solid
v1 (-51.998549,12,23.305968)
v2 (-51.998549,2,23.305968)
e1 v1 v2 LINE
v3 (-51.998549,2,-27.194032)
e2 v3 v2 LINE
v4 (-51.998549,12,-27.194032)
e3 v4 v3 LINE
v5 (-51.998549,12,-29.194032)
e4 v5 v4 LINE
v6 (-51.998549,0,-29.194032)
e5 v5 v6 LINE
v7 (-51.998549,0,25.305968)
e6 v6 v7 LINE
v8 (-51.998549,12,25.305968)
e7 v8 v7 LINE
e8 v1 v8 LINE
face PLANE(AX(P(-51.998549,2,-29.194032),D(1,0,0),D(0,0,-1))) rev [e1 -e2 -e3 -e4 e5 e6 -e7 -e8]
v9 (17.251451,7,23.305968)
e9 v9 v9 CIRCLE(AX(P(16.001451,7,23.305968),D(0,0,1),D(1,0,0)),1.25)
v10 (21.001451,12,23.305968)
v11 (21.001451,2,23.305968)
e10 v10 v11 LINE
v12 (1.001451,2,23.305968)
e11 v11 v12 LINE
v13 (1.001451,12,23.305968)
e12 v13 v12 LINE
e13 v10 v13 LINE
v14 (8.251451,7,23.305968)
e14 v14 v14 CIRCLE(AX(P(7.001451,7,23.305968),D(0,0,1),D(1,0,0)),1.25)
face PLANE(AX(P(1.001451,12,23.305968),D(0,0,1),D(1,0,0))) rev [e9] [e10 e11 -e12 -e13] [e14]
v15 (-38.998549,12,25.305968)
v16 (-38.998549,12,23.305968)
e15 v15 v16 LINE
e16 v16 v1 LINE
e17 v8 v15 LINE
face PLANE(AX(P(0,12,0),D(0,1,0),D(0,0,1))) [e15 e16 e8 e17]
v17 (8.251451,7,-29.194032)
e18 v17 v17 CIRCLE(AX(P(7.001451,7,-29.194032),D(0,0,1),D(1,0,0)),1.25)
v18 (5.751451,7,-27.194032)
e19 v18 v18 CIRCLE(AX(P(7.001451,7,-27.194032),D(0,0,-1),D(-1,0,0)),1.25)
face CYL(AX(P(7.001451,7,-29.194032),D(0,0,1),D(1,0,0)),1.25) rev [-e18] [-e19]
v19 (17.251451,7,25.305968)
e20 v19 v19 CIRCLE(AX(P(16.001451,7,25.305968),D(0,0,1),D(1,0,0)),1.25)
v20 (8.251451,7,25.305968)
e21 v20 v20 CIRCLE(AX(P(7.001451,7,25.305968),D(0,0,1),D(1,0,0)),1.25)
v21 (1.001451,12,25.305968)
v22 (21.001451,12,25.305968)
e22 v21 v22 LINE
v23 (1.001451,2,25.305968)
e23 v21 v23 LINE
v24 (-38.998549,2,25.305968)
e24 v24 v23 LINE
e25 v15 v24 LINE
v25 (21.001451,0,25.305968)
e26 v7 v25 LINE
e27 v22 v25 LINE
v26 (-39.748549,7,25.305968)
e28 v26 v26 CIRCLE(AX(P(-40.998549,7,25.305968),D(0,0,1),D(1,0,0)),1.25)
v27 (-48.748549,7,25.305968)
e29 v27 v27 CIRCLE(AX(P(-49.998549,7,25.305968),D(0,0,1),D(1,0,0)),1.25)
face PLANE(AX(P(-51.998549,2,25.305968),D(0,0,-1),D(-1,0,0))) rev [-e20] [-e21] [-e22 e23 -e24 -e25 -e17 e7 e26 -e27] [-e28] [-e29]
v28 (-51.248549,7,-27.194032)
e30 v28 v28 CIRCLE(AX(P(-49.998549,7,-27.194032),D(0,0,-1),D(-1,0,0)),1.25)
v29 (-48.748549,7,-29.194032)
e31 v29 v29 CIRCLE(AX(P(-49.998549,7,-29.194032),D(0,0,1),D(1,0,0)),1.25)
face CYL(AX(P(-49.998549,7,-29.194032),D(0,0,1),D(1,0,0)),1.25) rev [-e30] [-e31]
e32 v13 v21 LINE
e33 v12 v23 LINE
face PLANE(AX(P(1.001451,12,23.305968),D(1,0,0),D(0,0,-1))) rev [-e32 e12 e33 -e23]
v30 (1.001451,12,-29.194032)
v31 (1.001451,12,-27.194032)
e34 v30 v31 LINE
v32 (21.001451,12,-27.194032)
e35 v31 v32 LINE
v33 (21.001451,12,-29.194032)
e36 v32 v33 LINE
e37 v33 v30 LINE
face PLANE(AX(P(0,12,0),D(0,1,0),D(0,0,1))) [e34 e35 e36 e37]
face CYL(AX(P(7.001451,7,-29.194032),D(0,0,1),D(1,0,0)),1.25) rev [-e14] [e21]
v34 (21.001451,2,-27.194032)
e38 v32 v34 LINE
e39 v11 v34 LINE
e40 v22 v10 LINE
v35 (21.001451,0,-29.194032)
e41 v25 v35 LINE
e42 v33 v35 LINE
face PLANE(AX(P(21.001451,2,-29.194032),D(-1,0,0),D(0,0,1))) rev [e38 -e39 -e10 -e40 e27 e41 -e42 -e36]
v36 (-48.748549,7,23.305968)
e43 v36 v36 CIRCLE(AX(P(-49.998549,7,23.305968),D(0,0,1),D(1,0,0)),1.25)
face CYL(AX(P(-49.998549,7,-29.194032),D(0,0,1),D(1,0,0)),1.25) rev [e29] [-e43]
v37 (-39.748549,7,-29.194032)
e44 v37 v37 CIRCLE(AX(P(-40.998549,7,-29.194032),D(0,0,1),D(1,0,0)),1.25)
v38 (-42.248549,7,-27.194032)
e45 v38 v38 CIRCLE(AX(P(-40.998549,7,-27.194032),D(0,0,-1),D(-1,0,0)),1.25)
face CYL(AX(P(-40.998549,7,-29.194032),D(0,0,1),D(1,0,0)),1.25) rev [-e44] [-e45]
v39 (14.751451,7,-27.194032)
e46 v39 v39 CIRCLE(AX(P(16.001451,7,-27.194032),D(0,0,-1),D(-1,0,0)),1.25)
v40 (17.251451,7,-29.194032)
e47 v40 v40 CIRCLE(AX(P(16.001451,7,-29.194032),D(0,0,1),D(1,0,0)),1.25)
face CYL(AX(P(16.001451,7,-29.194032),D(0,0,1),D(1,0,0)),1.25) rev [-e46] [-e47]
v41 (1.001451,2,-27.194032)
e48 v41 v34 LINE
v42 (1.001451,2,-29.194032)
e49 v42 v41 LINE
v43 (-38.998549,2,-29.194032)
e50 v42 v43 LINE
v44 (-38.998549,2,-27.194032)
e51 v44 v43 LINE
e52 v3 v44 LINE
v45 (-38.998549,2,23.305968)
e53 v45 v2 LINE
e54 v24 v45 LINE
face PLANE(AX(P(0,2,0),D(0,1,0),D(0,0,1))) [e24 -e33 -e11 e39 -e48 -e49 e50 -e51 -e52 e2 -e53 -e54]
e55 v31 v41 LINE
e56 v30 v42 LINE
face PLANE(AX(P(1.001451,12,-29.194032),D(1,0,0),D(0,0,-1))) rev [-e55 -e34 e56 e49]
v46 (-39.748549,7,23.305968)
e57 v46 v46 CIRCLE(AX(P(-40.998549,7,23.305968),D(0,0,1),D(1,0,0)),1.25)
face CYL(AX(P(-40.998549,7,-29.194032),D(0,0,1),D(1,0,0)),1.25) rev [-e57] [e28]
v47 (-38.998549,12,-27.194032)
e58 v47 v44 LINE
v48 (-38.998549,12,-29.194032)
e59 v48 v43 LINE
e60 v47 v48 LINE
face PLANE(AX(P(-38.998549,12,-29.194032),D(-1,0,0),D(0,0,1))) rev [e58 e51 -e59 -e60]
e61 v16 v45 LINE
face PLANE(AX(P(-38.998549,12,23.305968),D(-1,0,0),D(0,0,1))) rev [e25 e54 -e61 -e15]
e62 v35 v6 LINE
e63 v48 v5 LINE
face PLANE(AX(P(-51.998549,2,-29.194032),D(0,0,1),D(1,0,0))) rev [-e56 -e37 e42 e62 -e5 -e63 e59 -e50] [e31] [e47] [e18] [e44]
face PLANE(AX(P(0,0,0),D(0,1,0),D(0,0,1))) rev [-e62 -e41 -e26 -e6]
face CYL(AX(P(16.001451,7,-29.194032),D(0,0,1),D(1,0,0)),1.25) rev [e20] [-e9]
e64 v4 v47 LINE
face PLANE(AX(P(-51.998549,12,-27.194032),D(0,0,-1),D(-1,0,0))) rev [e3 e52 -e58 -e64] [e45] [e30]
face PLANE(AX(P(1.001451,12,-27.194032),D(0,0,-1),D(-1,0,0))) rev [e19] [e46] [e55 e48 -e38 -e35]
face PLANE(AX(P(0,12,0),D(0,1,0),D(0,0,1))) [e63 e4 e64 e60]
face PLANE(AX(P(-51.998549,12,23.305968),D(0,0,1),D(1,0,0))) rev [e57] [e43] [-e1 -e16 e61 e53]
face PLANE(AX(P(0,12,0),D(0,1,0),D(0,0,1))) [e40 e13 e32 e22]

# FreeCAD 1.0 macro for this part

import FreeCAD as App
import Part
import Sketcher

V = App.Vector

doc = App.newDocument("Part")
params = doc.addObject("Spreadsheet::Sheet", "Params")
for row, (alias, value) in enumerate([
    ("sketch1_width", "73 mm"),
    ("sketch1_height", "54.5 mm"),
    ("pad1_length", "2 mm"),
    ("sketch2_width", "20 mm"),
    ("sketch2_width2", "13 mm"),
    ("sketch2_height", "2 mm"),
    ("pad2_length", "10 mm"),
    ("sketch3_diameter", "2.5 mm"),
], start=1):
    params.set(f"A{row}", alias)
    params.set(f"B{row}", "=" + value)
    params.setAlias(f"B{row}", alias)

body = doc.addObject("PartDesign::Body", "Body")

# Sketch on XZ plane
sketch1 = doc.addObject("Sketcher::SketchObject", "Sketch")
body.addObject(sketch1)
sketch1.AttachmentSupport = (doc.XZ_Plane, [""])
sketch1.MapMode = "FlatFace"
sketch1.addGeometry([
    Part.LineSegment(V(-52, -29, 0), V(-52, 25, 0)),
    Part.LineSegment(V(-52, 25, 0), V(21, 25, 0)),
    Part.LineSegment(V(21, 25, 0), V(21, -29, 0)),
    Part.LineSegment(V(21, -29, 0), V(-52, -29, 0)),
], False)
sketch1.addConstraint([
    Sketcher.Constraint("Coincident", 0, 2, 1, 1),
    Sketcher.Constraint("Coincident", 1, 2, 2, 1),
    Sketcher.Constraint("Coincident", 2, 2, 3, 1),
    Sketcher.Constraint("Coincident", 3, 2, 0, 1),
    Sketcher.Constraint("Vertical", 0),
    Sketcher.Constraint("Horizontal", 1),
    Sketcher.Constraint("Vertical", 2),
    Sketcher.Constraint("Horizontal", 3),
    Sketcher.Constraint("DistanceX", 1, 1, 1, 2, 73.0),
    Sketcher.Constraint("DistanceY", 0, 1, 0, 2, 54.5),
    Sketcher.Constraint("DistanceX", 0, 2, -1, 1, 51.998549),
    Sketcher.Constraint("DistanceY", -1, 1, 0, 2, 25.305968),
])
sketch1.setExpression("Constraints[8]", "Params.sketch1_width")
sketch1.setExpression("Constraints[9]", "Params.sketch1_height")
pad1 = doc.addObject("PartDesign::Pad", "Pad")
body.addObject(pad1)
pad1.Profile = sketch1
pad1.setExpression("Length", "Params.pad1_length")
pad1.Reversed = True

# Sketch on XZ plane
sketch2 = doc.addObject("Sketcher::SketchObject", "Sketch001")
body.addObject(sketch2)
sketch2.AttachmentSupport = (doc.XZ_Plane, [""])
sketch2.MapMode = "FlatFace"
sketch2.AttachmentOffset = App.Placement(V(0, 0, -2), App.Rotation())
sketch2.addGeometry([
    Part.LineSegment(V(1, -29.2, 0), V(1, -27.2, 0)),  # 0
    Part.LineSegment(V(1, -27.2, 0), V(21, -27.2, 0)),  # 1
    Part.LineSegment(V(21, -27.2, 0), V(21, -29.2, 0)),  # 2
    Part.LineSegment(V(21, -29.2, 0), V(1, -29.2, 0)),  # 3
    Part.LineSegment(V(1, 23.3, 0), V(1, 25.3, 0)),  # 4
    Part.LineSegment(V(1, 25.3, 0), V(21, 25.3, 0)),  # 5
    Part.LineSegment(V(21, 25.3, 0), V(21, 23.3, 0)),  # 6
    Part.LineSegment(V(21, 23.3, 0), V(1, 23.3, 0)),  # 7
    Part.LineSegment(V(-52, -29.2, 0), V(-52, -27.2, 0)),  # 8
    Part.LineSegment(V(-52, -27.2, 0), V(-39, -27.2, 0)),  # 9
    Part.LineSegment(V(-39, -27.2, 0), V(-39, -29.2, 0)),  # 10
    Part.LineSegment(V(-39, -29.2, 0), V(-52, -29.2, 0)),  # 11
    Part.LineSegment(V(-52, 23.3, 0), V(-52, 25.3, 0)),  # 12
    Part.LineSegment(V(-52, 25.3, 0), V(-39, 25.3, 0)),  # 13
    Part.LineSegment(V(-39, 25.3, 0), V(-39, 23.3, 0)),  # 14
    Part.LineSegment(V(-39, 23.3, 0), V(-52, 23.3, 0)),  # 15
], False)
sketch2.addConstraint([
    Sketcher.Constraint("Coincident", 0, 2, 1, 1),
    Sketcher.Constraint("Coincident", 1, 2, 2, 1),
    Sketcher.Constraint("Coincident", 2, 2, 3, 1),
    Sketcher.Constraint("Coincident", 3, 2, 0, 1),
    Sketcher.Constraint("Coincident", 4, 2, 5, 1),
    Sketcher.Constraint("Coincident", 5, 2, 6, 1),
    Sketcher.Constraint("Coincident", 6, 2, 7, 1),
    Sketcher.Constraint("Coincident", 7, 2, 4, 1),
    Sketcher.Constraint("Coincident", 8, 2, 9, 1),
    Sketcher.Constraint("Coincident", 9, 2, 10, 1),
    Sketcher.Constraint("Coincident", 10, 2, 11, 1),
    Sketcher.Constraint("Coincident", 11, 2, 8, 1),
    Sketcher.Constraint("Coincident", 12, 2, 13, 1),
    Sketcher.Constraint("Coincident", 13, 2, 14, 1),
    Sketcher.Constraint("Coincident", 14, 2, 15, 1),
    Sketcher.Constraint("Coincident", 15, 2, 12, 1),
    Sketcher.Constraint("Vertical", 0),
    Sketcher.Constraint("Horizontal", 1),
    Sketcher.Constraint("Vertical", 2),
    Sketcher.Constraint("Horizontal", 3),
    Sketcher.Constraint("Vertical", 4),
    Sketcher.Constraint("Horizontal", 5),
    Sketcher.Constraint("Vertical", 6),
    Sketcher.Constraint("Horizontal", 7),
    Sketcher.Constraint("Vertical", 8),
    Sketcher.Constraint("Horizontal", 9),
    Sketcher.Constraint("Vertical", 10),
    Sketcher.Constraint("Horizontal", 11),
    Sketcher.Constraint("Vertical", 12),
    Sketcher.Constraint("Horizontal", 13),
    Sketcher.Constraint("Vertical", 14),
    Sketcher.Constraint("Horizontal", 15),
    Sketcher.Constraint("Horizontal", 1, 2, 8, 2),
    Sketcher.Constraint("Horizontal", 3, 2, 10, 2),
    Sketcher.Constraint("Horizontal", 5, 2, 12, 2),
    Sketcher.Constraint("Horizontal", 7, 2, 14, 2),
    Sketcher.Constraint("Vertical", 3, 2, 4, 2),
    Sketcher.Constraint("Vertical", 2, 2, 5, 2),
    Sketcher.Constraint("Vertical", 11, 2, 12, 2),
    Sketcher.Constraint("Vertical", 10, 2, 13, 2),
    Sketcher.Constraint("Equal", 2, 4),
    Sketcher.Constraint("DistanceX", 1, 1, 1, 2, 20.0),
    Sketcher.Constraint("DistanceX", 9, 1, 9, 2, 13.0),
    Sketcher.Constraint("DistanceY", 0, 1, 0, 2, 2.0),
    Sketcher.Constraint("DistanceX", 8, 2, 0, 2, 53.0),
    Sketcher.Constraint("DistanceY", 0, 2, 4, 2, 52.5),
    Sketcher.Constraint("DistanceX", -1, 1, 0, 2, 1.001451),
    Sketcher.Constraint("DistanceY", 0, 2, -1, 1, 27.194032),
])
sketch2.setExpression("Constraints[41]", "Params.sketch2_width")
sketch2.setExpression("Constraints[42]", "Params.sketch2_width2")
sketch2.setExpression("Constraints[43]", "Params.sketch2_height")
pad2 = doc.addObject("PartDesign::Pad", "Pad001")
body.addObject(pad2)
pad2.Profile = sketch2
pad2.setExpression("Length", "Params.pad2_length")
pad2.Reversed = True

# Sketch on XY plane
sketch3 = doc.addObject("Sketcher::SketchObject", "Sketch002")
body.addObject(sketch3)
sketch3.AttachmentSupport = (doc.XY_Plane, [""])
sketch3.MapMode = "FlatFace"
sketch3.AttachmentOffset = App.Placement(V(0, 0, 25.305968), App.Rotation())
sketch3.addGeometry([
    Part.Circle(V(16, 7, 0), V(0, 0, 1), 1.2),
    Part.Circle(V(7, 7, 0), V(0, 0, 1), 1.2),
    Part.Circle(V(-41, 7, 0), V(0, 0, 1), 1.2),
    Part.Circle(V(-50, 7, 0), V(0, 0, 1), 1.2),
], False)
sketch3.addConstraint([
    Sketcher.Constraint("Equal", 0, 1),
    Sketcher.Constraint("Equal", 1, 2),
    Sketcher.Constraint("Equal", 2, 3),
    Sketcher.Constraint("Horizontal", 0, 3, 1, 3),
    Sketcher.Constraint("Horizontal", 1, 3, 2, 3),
    Sketcher.Constraint("Horizontal", 2, 3, 3, 3),
    Sketcher.Constraint("Diameter", 0, 2.5),
    Sketcher.Constraint("DistanceY", -1, 1, 0, 3, 7.0),
    Sketcher.Constraint("DistanceX", 1, 3, 0, 3, 9.0),
    Sketcher.Constraint("DistanceX", 2, 3, 1, 3, 48.0),
    Sketcher.Constraint("DistanceX", 3, 3, 2, 3, 9.0),
    Sketcher.Constraint("DistanceX", -1, 1, 0, 3, 16.001451),
])
sketch3.setExpression("Constraints[6]", "Params.sketch3_diameter")
pocket1 = doc.addObject("PartDesign::Pocket", "Pocket")
body.addObject(pocket1)
pocket1.Profile = sketch3
pocket1.Type = "ThroughAll"

doc.recompute()
